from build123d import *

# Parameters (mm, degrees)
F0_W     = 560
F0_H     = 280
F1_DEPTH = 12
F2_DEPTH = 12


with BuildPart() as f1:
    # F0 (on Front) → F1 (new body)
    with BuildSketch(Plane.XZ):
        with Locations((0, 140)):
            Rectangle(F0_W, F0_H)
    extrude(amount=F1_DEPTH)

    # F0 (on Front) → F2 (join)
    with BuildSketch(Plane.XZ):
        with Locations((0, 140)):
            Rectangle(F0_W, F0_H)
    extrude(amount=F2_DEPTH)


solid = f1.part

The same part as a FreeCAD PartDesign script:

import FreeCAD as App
import Part
import Sketcher
from FreeCAD import Vector
Q = App.Units.Quantity

doc = App.newDocument("Part")
params = doc.addObject("Spreadsheet::Sheet", "Params")
for row, (alias, value) in enumerate([
    ("sketch1_width", "560 mm"),
    ("sketch1_height", "280 mm"),
    ("pad1_length", "12 mm"),
    ("sketch2_width", "560 mm"),
    ("sketch2_height", "280 mm"),
    ("pad2_length", "12 mm"),
], start=1):
    params.set(f"A{row}", alias)
    params.set(f"B{row}", "=" + value)
    params.setAlias(f"B{row}", alias)

body = doc.addObject("PartDesign::Body", "Body")

# Sketch on XZ plane
sketch1 = doc.addObject("Sketcher::SketchObject", "Sketch")
body.addObject(sketch1)
sketch1.AttachmentSupport = (doc.XZ_Plane, [""])
sketch1.MapMode = "FlatFace"
sketch1.addGeometry([
    Part.LineSegment(Vector(-280, 280, 0), Vector(-280, 0, 0)),
    Part.LineSegment(Vector(-280, 0, 0), Vector(280, 0, 0)),
    Part.LineSegment(Vector(280, 0, 0), Vector(280, 280, 0)),
    Part.LineSegment(Vector(280, 280, 0), Vector(-280, 280, 0)),
], False)
sketch1.addConstraint([
    Sketcher.Constraint("Coincident", 0, 2, 1, 1),
    Sketcher.Constraint("Coincident", 1, 2, 2, 1),
    Sketcher.Constraint("Coincident", 2, 2, 3, 1),
    Sketcher.Constraint("Coincident", 3, 2, 0, 1),
    Sketcher.Constraint("Vertical", 0),
    Sketcher.Constraint("Horizontal", 1),
    Sketcher.Constraint("Vertical", 2),
    Sketcher.Constraint("Horizontal", 3),
    Sketcher.Constraint("Symmetric", 0, 2, 1, 2, -1, 1),
    Sketcher.Constraint("DistanceX", 1, 1, 1, 2, Q("560 mm")),
    Sketcher.Constraint("DistanceY", 0, 2, 0, 1, Q("280 mm")),
])
sketch1.setExpression("Constraints[9]", "Params.sketch1_width")
sketch1.setExpression("Constraints[10]", "Params.sketch1_height")
pad1 = doc.addObject("PartDesign::Pad", "Pad")
body.addObject(pad1)
pad1.Profile = sketch1
pad1.setExpression("Length", "Params.pad1_length")

# Sketch on XZ plane
sketch2 = doc.addObject("Sketcher::SketchObject", "Sketch001")
body.addObject(sketch2)
sketch2.AttachmentSupport = (doc.XZ_Plane, [""])
sketch2.MapMode = "FlatFace"
sketch2.addGeometry([
    Part.LineSegment(Vector(-280, 280, 0), Vector(-280, 0, 0)),
    Part.LineSegment(Vector(-280, 0, 0), Vector(280, 0, 0)),
    Part.LineSegment(Vector(280, 0, 0), Vector(280, 280, 0)),
    Part.LineSegment(Vector(280, 280, 0), Vector(-280, 280, 0)),
], False)
sketch2.addConstraint([
    Sketcher.Constraint("Coincident", 0, 2, 1, 1),
    Sketcher.Constraint("Coincident", 1, 2, 2, 1),
    Sketcher.Constraint("Coincident", 2, 2, 3, 1),
    Sketcher.Constraint("Coincident", 3, 2, 0, 1),
    Sketcher.Constraint("Vertical", 0),
    Sketcher.Constraint("Horizontal", 1),
    Sketcher.Constraint("Vertical", 2),
    Sketcher.Constraint("Horizontal", 3),
    Sketcher.Constraint("Symmetric", 0, 2, 1, 2, -1, 1),
    Sketcher.Constraint("DistanceX", 1, 1, 1, 2, Q("560 mm")),
    Sketcher.Constraint("DistanceY", 0, 2, 0, 1, Q("280 mm")),
])
sketch2.setExpression("Constraints[9]", "Params.sketch2_width")
sketch2.setExpression("Constraints[10]", "Params.sketch2_height")
pad2 = doc.addObject("PartDesign::Pad", "Pad001")
body.addObject(pad2)
pad2.Profile = sketch2
pad2.setExpression("Length", "Params.pad2_length")

doc.recompute()
